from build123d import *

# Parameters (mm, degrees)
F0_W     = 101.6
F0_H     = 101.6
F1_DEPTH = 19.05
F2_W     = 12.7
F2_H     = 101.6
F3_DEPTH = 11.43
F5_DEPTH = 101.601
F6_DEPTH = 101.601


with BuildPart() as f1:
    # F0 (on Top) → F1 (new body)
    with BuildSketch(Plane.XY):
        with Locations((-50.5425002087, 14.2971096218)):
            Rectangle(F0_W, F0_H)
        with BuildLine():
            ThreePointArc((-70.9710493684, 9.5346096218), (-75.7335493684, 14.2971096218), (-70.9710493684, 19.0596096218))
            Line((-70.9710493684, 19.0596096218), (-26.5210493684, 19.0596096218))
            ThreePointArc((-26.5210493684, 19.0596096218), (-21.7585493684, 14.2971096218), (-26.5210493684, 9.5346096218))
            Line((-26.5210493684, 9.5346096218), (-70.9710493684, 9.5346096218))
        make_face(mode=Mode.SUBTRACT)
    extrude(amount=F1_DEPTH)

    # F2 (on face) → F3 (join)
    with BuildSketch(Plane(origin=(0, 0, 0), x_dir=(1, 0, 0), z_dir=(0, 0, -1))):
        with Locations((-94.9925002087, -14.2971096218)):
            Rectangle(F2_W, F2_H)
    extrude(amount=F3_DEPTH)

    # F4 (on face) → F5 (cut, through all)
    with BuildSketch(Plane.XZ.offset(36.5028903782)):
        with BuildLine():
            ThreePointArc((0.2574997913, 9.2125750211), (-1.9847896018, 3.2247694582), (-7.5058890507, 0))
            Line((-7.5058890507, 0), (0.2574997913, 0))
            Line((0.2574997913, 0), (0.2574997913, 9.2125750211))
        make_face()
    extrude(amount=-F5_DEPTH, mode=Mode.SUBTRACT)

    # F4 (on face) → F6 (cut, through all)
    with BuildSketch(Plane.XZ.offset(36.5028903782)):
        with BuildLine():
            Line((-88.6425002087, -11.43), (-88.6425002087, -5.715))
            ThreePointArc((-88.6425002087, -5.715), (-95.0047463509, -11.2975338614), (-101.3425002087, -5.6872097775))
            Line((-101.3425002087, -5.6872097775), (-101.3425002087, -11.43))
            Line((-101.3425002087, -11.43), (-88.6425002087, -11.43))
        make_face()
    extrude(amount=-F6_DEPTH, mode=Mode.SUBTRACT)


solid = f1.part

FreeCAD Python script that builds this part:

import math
import FreeCAD as App
import Part
import Sketcher

V = App.Vector
Q = App.Units.Quantity

doc = App.newDocument("Part")
body = doc.addObject("PartDesign::Body", "Body")

# Sketch on XY plane
sketch1 = body.newObject("Sketcher::SketchObject", "Sketch")
sketch1.AttachmentSupport = (doc.getObject("XY_Plane"), [""])
sketch1.MapMode = "FlatFace"
sketch1.addGeometry([
    Part.LineSegment(V(-101.3, 65.1, 0), V(-101.3, -36.5, 0)),  # 0
    Part.LineSegment(V(-101.3, -36.5, 0), V(0.3, -36.5, 0)),  # 1
    Part.LineSegment(V(0.3, -36.5, 0), V(0.3, 65.1, 0)),  # 2
    Part.LineSegment(V(0.3, 65.1, 0), V(-101.3, 65.1, 0)),  # 3
    Part.LineSegment(V(-26.5, 9.5, 0), V(-71, 9.5, 0)),  # 4
    Part.ArcOfCircle(Part.Circle(V(-71, 14.3, 0), V(0, 0, 1), 4.8), math.radians(90), math.radians(270)),  # 5
    Part.LineSegment(V(-71, 19.1, 0), V(-26.5, 19.1, 0)),  # 6
    Part.ArcOfCircle(Part.Circle(V(-26.5, 14.3, 0), V(0, 0, 1), 4.8), math.radians(-90), math.radians(90)),  # 7
], False)
sketch1.addConstraint([
    Sketcher.Constraint("Coincident", 0, 2, 1, 1),
    Sketcher.Constraint("Coincident", 1, 2, 2, 1),
    Sketcher.Constraint("Coincident", 2, 2, 3, 1),
    Sketcher.Constraint("Coincident", 3, 2, 0, 1),
    Sketcher.Constraint("Tangent", 4, 2, 5, 2),
    Sketcher.Constraint("Tangent", 5, 1, 6, 1),
    Sketcher.Constraint("Tangent", 6, 2, 7, 2),
    Sketcher.Constraint("Tangent", 7, 1, 4, 1),
    Sketcher.Constraint("Vertical", 0),
    Sketcher.Constraint("Horizontal", 1),
    Sketcher.Constraint("Vertical", 2),
    Sketcher.Constraint("Horizontal", 3),
    Sketcher.Constraint("Horizontal", 4),
    Sketcher.Constraint("Horizontal", 6),
    Sketcher.Constraint("Equal", 3, 0),
    Sketcher.Constraint("DistanceX", 1, 1, 1, 2, Q("4 in")),
    Sketcher.Constraint("Radius", 5, Q("0.1875 in")),
    Sketcher.Constraint("DistanceY", 0, 2, 5, 3, Q("2 in")),
    Sketcher.Constraint("DistanceX", 4, 2, 4, 1, Q("1.75 in")),
    Sketcher.Constraint("DistanceX", 0, 2, -1, 1, 101.3425),
    Sketcher.Constraint("DistanceX", 5, 3, -1, 1, 70.971049),
    Sketcher.Constraint("DistanceY", -1, 1, 5, 3, 14.29711),
])
pad1 = body.newObject("PartDesign::Pad", "Pad")
pad1.Profile = sketch1
pad1.Length = Q("0.75 in")

# Sketch on XY plane
sketch2 = body.newObject("Sketcher::SketchObject", "Sketch001")
sketch2.AttachmentSupport = (doc.getObject("XY_Plane"), [""])
sketch2.MapMode = "FlatFace"
sketch2.addGeometry([
    Part.LineSegment(V(-101, -37, 0), V(-101, 65, 0)),
    Part.LineSegment(V(-101, 65, 0), V(-89, 65, 0)),
    Part.LineSegment(V(-89, 65, 0), V(-89, -37, 0)),
    Part.LineSegment(V(-89, -37, 0), V(-101, -37, 0)),
], False)
sketch2.addConstraint([
    Sketcher.Constraint("Coincident", 0, 2, 1, 1),
    Sketcher.Constraint("Coincident", 1, 2, 2, 1),
    Sketcher.Constraint("Coincident", 2, 2, 3, 1),
    Sketcher.Constraint("Coincident", 3, 2, 0, 1),
    Sketcher.Constraint("Vertical", 0),
    Sketcher.Constraint("Horizontal", 1),
    Sketcher.Constraint("Vertical", 2),
    Sketcher.Constraint("Horizontal", 3),
    Sketcher.Constraint("DistanceY", 0, 1, 0, 2, Q("4 in")),
    Sketcher.Constraint("DistanceX", 1, 1, 1, 2, Q("0.5 in")),
    Sketcher.Constraint("DistanceX", 0, 2, -1, 1, 101.3425),
    Sketcher.Constraint("DistanceY", -1, 1, 0, 2, 65.09711),
])
pad2 = body.newObject("PartDesign::Pad", "Pad001")
pad2.Profile = sketch2
pad2.Length = Q("0.45 in")
pad2.Reversed = True

# Sketch on XZ plane
sketch3 = body.newObject("Sketcher::SketchObject", "Sketch002")
sketch3.AttachmentSupport = (doc.getObject("XZ_Plane"), [""])
sketch3.MapMode = "FlatFace"
sketch3.AttachmentOffset = App.Placement(V(0, 0, 36.50289), App.Rotation())
sketch3.addGeometry([
    Part.ArcOfCircle(Part.Circle(V(-9, 9, 0), V(0, 0, 1), 10), math.radians(-79), math.radians(-1)),
    Part.LineSegment(V(-8, 0, 0), V(0, 0, 0)),
    Part.LineSegment(V(0, 0, 0), V(0, 9, 0)),
], False)
sketch3.addConstraint([
    Sketcher.Constraint("Coincident", 0, 1, 1, 1),
    Sketcher.Constraint("Coincident", 1, 2, 2, 1),
    Sketcher.Constraint("Coincident", 2, 2, 0, 2),
    Sketcher.Constraint("Horizontal", 1),
    Sketcher.Constraint("Vertical", 2),
    Sketcher.Constraint("PointOnObject", 0, 1, -1),
    Sketcher.Constraint("DistanceY", 2, 1, 2, 2, Q("0.3626998 in")),
    Sketcher.Constraint("Radius", 0, 9.534487),
    Sketcher.Constraint("DistanceX", 1, 1, 1, 2, 7.763389),
    Sketcher.Constraint("DistanceX", -1, 1, 1, 2, 0.2575),
])
pocket1 = body.newObject("PartDesign::Pocket", "Pocket")
pocket1.Profile = sketch3
pocket1.Type = "ThroughAll"

# Sketch on XZ plane
sketch4 = body.newObject("Sketcher::SketchObject", "Sketch003")
sketch4.AttachmentSupport = (doc.getObject("XZ_Plane"), [""])
sketch4.MapMode = "FlatFace"
sketch4.AttachmentOffset = App.Placement(V(0, 0, 36.50289), App.Rotation())
sketch4.addGeometry([
    Part.LineSegment(V(-89, -11, 0), V(-89, -6, 0)),
    Part.ArcOfCircle(Part.Circle(V(-95, -5, 0), V(0, 0, 1), 6), math.radians(-173), math.radians(-7)),
    Part.LineSegment(V(-101, -6, 0), V(-101, -11, 0)),
    Part.LineSegment(V(-101, -11, 0), V(-89, -11, 0)),
], False)
sketch4.addConstraint([
    Sketcher.Constraint("Coincident", 0, 2, 1, 2),
    Sketcher.Constraint("Coincident", 1, 1, 2, 1),
    Sketcher.Constraint("Coincident", 2, 2, 3, 1),
    Sketcher.Constraint("Coincident", 3, 2, 0, 1),
    Sketcher.Constraint("Vertical", 0),
    Sketcher.Constraint("Vertical", 2),
    Sketcher.Constraint("Horizontal", 3),
    Sketcher.Constraint("DistanceX", 3, 1, 3, 2, Q("0.5 in")),
    Sketcher.Constraint("DistanceY", 0, 1, 0, 2, Q("0.225 in")),
    Sketcher.Constraint("DistanceY", 2, 2, -1, 1, Q("0.45 in")),
    Sketcher.Constraint("Radius", 1, 6.40075),
    Sketcher.Constraint("DistanceY", 2, 2, 2, 1, 5.74279),
    Sketcher.Constraint("DistanceX", 0, 2, -1, 1, 88.6425),
])
pocket2 = body.newObject("PartDesign::Pocket", "Pocket001")
pocket2.Profile = sketch4
pocket2.Type = "ThroughAll"

doc.recompute()
